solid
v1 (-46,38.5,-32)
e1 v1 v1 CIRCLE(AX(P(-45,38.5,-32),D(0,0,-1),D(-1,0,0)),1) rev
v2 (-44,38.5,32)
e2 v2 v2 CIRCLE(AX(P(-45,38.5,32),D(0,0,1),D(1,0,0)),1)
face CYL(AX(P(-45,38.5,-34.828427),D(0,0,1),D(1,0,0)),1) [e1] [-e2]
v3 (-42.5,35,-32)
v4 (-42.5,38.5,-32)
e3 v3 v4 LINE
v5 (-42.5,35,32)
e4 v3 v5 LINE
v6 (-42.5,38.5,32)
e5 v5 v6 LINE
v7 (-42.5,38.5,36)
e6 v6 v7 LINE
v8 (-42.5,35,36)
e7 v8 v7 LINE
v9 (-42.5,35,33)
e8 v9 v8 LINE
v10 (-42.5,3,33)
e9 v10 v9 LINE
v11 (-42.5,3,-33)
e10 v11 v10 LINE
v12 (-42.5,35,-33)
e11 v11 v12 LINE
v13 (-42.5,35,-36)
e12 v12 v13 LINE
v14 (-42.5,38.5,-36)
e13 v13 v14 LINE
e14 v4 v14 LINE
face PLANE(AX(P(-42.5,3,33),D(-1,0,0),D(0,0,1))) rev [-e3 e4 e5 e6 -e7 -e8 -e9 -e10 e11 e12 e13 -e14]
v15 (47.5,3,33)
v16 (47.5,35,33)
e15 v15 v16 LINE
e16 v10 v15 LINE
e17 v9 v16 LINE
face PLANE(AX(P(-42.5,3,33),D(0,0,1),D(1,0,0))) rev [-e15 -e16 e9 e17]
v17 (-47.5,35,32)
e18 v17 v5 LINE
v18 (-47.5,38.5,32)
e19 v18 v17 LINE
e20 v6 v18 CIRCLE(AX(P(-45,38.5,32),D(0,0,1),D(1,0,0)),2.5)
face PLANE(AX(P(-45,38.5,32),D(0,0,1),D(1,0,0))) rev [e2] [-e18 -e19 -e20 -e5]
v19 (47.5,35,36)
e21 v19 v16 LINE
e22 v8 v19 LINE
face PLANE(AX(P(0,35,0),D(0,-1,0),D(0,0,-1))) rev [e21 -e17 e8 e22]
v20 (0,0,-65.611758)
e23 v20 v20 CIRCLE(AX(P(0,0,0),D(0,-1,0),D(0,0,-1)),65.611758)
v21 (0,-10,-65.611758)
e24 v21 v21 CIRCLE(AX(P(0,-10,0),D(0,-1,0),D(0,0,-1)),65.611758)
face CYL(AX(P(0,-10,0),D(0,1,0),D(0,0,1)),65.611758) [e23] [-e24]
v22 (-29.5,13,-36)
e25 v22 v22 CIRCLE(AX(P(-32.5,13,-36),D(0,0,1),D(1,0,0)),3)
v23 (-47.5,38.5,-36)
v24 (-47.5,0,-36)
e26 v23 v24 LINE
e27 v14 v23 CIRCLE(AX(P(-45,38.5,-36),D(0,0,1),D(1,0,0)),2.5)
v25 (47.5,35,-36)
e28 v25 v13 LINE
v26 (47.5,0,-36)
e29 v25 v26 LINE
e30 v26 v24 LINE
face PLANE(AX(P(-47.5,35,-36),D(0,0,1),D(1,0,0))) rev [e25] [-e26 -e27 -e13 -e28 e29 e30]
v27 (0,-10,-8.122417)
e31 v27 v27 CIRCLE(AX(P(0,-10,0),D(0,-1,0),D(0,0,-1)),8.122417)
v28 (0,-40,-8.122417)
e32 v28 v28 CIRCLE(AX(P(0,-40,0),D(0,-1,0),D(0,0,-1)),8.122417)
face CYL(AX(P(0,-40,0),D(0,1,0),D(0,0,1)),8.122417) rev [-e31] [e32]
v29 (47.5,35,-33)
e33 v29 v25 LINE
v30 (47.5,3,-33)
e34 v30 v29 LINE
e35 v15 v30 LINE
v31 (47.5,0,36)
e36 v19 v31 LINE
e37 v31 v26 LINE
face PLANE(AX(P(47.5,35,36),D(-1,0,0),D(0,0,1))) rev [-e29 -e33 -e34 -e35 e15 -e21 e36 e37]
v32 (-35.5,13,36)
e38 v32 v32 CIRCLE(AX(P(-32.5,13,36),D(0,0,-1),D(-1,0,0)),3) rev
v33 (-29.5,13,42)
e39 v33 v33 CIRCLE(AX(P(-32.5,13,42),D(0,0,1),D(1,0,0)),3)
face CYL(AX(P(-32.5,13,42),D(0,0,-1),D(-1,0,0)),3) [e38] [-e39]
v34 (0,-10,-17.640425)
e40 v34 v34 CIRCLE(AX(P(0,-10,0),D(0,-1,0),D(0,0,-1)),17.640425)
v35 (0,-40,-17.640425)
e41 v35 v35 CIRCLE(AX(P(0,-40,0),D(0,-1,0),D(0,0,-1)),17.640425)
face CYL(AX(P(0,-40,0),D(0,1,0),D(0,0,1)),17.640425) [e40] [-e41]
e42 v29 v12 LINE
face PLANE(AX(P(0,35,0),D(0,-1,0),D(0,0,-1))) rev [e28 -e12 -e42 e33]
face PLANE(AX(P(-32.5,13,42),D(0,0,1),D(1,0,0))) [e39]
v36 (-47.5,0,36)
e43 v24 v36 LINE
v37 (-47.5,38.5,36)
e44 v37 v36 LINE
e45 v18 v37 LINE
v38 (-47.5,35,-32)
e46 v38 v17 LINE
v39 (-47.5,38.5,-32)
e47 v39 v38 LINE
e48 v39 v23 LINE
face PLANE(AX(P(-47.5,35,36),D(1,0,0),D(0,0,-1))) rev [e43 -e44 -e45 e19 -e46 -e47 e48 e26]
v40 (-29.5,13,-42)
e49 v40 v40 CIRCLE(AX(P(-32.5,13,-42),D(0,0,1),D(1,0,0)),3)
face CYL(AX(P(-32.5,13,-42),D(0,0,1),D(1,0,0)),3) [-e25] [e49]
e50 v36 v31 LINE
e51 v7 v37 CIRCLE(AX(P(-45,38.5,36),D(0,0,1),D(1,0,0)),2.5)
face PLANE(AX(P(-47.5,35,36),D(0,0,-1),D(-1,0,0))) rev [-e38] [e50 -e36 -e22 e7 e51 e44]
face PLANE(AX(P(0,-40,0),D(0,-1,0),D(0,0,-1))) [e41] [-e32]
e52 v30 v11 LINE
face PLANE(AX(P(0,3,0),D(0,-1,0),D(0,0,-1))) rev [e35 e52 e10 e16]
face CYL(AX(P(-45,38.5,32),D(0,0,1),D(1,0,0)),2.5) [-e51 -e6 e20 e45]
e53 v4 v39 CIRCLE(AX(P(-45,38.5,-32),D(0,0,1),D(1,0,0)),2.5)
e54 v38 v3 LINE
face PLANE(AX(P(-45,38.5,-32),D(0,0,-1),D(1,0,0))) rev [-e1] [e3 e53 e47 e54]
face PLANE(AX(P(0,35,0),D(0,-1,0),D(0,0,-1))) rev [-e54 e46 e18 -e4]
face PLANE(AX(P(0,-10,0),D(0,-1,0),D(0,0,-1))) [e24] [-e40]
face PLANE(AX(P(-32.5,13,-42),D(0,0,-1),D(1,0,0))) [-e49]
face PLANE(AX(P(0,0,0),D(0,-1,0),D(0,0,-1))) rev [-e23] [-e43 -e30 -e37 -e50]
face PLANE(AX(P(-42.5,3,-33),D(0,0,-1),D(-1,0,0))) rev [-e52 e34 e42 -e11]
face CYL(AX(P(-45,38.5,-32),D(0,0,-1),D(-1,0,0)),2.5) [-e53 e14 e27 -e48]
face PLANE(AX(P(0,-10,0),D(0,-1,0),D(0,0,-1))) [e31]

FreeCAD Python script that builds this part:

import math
import FreeCAD as App
import Part
import Sketcher
from FreeCAD import Vector

doc = App.newDocument("Part")
body = doc.addObject("PartDesign::Body", "Body")

# Sketch on XZ plane
sketch1 = body.newObject("Sketcher::SketchObject", "Sketch")
sketch1.AttachmentSupport = (doc.getObject("XZ_Plane"), [""])
sketch1.MapMode = "FlatFace"
sketch1.addGeometry([
    Part.LineSegment(Vector(-48, -36, 0), Vector(-48, 36, 0)),
    Part.LineSegment(Vector(-48, 36, 0), Vector(48, 36, 0)),
    Part.LineSegment(Vector(48, 36, 0), Vector(48, -36, 0)),
    Part.LineSegment(Vector(48, -36, 0), Vector(-48, -36, 0)),
], False)
sketch1.addConstraint([
    Sketcher.Constraint("Coincident", 0, 2, 1, 1),
    Sketcher.Constraint("Coincident", 1, 2, 2, 1),
    Sketcher.Constraint("Coincident", 2, 2, 3, 1),
    Sketcher.Constraint("Coincident", 3, 2, 0, 1),
    Sketcher.Constraint("Vertical", 0),
    Sketcher.Constraint("Horizontal", 1),
    Sketcher.Constraint("Vertical", 2),
    Sketcher.Constraint("Horizontal", 3),
    Sketcher.Constraint("Symmetric", 0, 2, 2, 2, -1, 1),
    Sketcher.Constraint("DistanceX", 1, 1, 1, 2, 95.0),
    Sketcher.Constraint("DistanceY", 0, 1, 0, 2, 72.0),
])
pad1 = body.newObject("PartDesign::Pad", "Pad")
pad1.Profile = sketch1
pad1.Length = 35
pad1.Reversed = True

# Sketch on XZ plane
sketch2 = body.newObject("Sketcher::SketchObject", "Sketch001")
sketch2.AttachmentSupport = (doc.getObject("XZ_Plane"), [""])
sketch2.MapMode = "FlatFace"
sketch2.AttachmentOffset = App.Placement(Vector(0, 0, -35), App.Rotation())
sketch2.addGeometry([
    Part.LineSegment(Vector(-42, -33, 0), Vector(-42, 33, 0)),
    Part.LineSegment(Vector(-42, 33, 0), Vector(48, 33, 0)),
    Part.LineSegment(Vector(48, 33, 0), Vector(48, -33, 0)),
    Part.LineSegment(Vector(48, -33, 0), Vector(-42, -33, 0)),
], False)
sketch2.addConstraint([
    Sketcher.Constraint("Coincident", 0, 2, 1, 1),
    Sketcher.Constraint("Coincident", 1, 2, 2, 1),
    Sketcher.Constraint("Coincident", 2, 2, 3, 1),
    Sketcher.Constraint("Coincident", 3, 2, 0, 1),
    Sketcher.Constraint("Vertical", 0),
    Sketcher.Constraint("Horizontal", 1),
    Sketcher.Constraint("Vertical", 2),
    Sketcher.Constraint("Horizontal", 3),
    Sketcher.Constraint("DistanceX", 1, 1, 1, 2, 90.0),
    Sketcher.Constraint("DistanceY", 0, 1, 0, 2, 66.0),
    Sketcher.Constraint("DistanceY", -1, 1, 0, 2, 33.0),
    Sketcher.Constraint("DistanceX", 0, 2, -1, 1, 42.5),
])
pocket1 = body.newObject("PartDesign::Pocket", "Pocket")
pocket1.Profile = sketch2
pocket1.Length = 32
pocket1.Reversed = True

# Sketch on XY plane
sketch3 = body.newObject("Sketcher::SketchObject", "Sketch002")
sketch3.AttachmentSupport = (doc.getObject("XY_Plane"), [""])
sketch3.MapMode = "FlatFace"
sketch3.AttachmentOffset = App.Placement(Vector(0, 0, 36), App.Rotation())
sketch3.addGeometry(Part.Circle(Vector(-32.5, 13, 0), Vector(0, 0, 1), 3), False)
sketch3.addConstraint([
    Sketcher.Constraint("Diameter", 0, 6.0),
    Sketcher.Constraint("DistanceY", -1, 1, 0, 3, 13.0),
    Sketcher.Constraint("DistanceX", 0, 3, -1, 1, 32.5),
])
pad2 = body.newObject("PartDesign::Pad", "Pad001")
pad2.Profile = sketch3
pad2.Length = 6
doc.recompute()

mirrored = body.newObject("PartDesign::Mirrored", "Mirrored")
mirrored.Originals = [pad2]
mirrored.MirrorPlane = (doc.getObject("XY_Plane"), [""])
body.Tip = mirrored

# Sketch on XY plane
sketch4 = body.newObject("Sketcher::SketchObject", "Sketch003")
sketch4.AttachmentSupport = (doc.getObject("XY_Plane"), [""])
sketch4.MapMode = "FlatFace"
sketch4.AttachmentOffset = App.Placement(Vector(0, 0, 36), App.Rotation())
sketch4.addGeometry([
    Part.LineSegment(Vector(-42.5, 35, 0), Vector(-42.5, 38.5, 0)),
    Part.ArcOfCircle(Part.Circle(Vector(-45, 38.5, 0), Vector(0, 0, 1), 2.5), math.radians(0), math.radians(180)),
    Part.LineSegment(Vector(-47.5, 38.5, 0), Vector(-47.5, 35, 0)),
    Part.LineSegment(Vector(-47.5, 35, 0), Vector(-42.5, 35, 0)),
], False)
sketch4.addConstraint([
    Sketcher.Constraint("Tangent", 0, 2, 1, 1),
    Sketcher.Constraint("Tangent", 1, 2, 2, 1),
    Sketcher.Constraint("Coincident", 2, 2, 3, 1),
    Sketcher.Constraint("Coincident", 3, 2, 0, 1),
    Sketcher.Constraint("Vertical", 0),
    Sketcher.Constraint("Vertical", 2),
    Sketcher.Constraint("Horizontal", 3),
    Sketcher.Constraint("Radius", 1, 2.5),
    Sketcher.Constraint("DistanceY", 0, 1, 0, 2, 3.5),
    Sketcher.Constraint("DistanceX", 1, 3, -1, 1, 45.0),
    Sketcher.Constraint("DistanceY", -1, 1, 2, 2, 35.0),
])
pad3 = body.newObject("PartDesign::Pad", "Pad002")
pad3.Profile = sketch4
pad3.Length = 4
pad3.Reversed = True
doc.recompute()

mirrored2 = body.newObject("PartDesign::Mirrored", "Mirrored001")
mirrored2.Originals = [pad3]
mirrored2.MirrorPlane = (doc.getObject("XY_Plane"), [""])
body.Tip = mirrored2

# Sketch on XZ plane
sketch5 = body.newObject("Sketcher::SketchObject", "Sketch004")
sketch5.AttachmentSupport = (doc.getObject("XZ_Plane"), [""])
sketch5.MapMode = "FlatFace"
sketch5.addGeometry(Part.Circle(Vector(0, 0, 0), Vector(0, 0, 1), 66), False)
sketch5.addConstraint([
    Sketcher.Constraint("Coincident", 0, 3, -1, 1),
    Sketcher.Constraint("Diameter", 0, 131.223516),
])
pad4 = body.newObject("PartDesign::Pad", "Pad003")
pad4.Profile = sketch5
pad4.Length = 10

# Sketch on XZ plane
sketch6 = body.newObject("Sketcher::SketchObject", "Sketch005")
sketch6.AttachmentSupport = (doc.getObject("XZ_Plane"), [""])
sketch6.MapMode = "FlatFace"
sketch6.AttachmentOffset = App.Placement(Vector(0, 0, 10), App.Rotation())
sketch6.addGeometry([
    Part.Circle(Vector(0, 0, 0), Vector(0, 0, 1), 18),
    Part.Circle(Vector(0, 0, 0), Vector(0, 0, 1), 8),
], False)
sketch6.addConstraint([
    Sketcher.Constraint("Coincident", 0, 3, -1, 1),
    Sketcher.Constraint("Coincident", 1, 3, -1, 1),
    Sketcher.Constraint("Diameter", 0, 35.28085),
    Sketcher.Constraint("Diameter", 1, 16.244833),
])
pad5 = body.newObject("PartDesign::Pad", "Pad004")
pad5.Profile = sketch6
pad5.Length = 30

# Sketch on XY plane
sketch7 = body.newObject("Sketcher::SketchObject", "Sketch006")
sketch7.AttachmentSupport = (doc.getObject("XY_Plane"), [""])
sketch7.MapMode = "FlatFace"
sketch7.AttachmentOffset = App.Placement(Vector(0, 0, 36), App.Rotation())
sketch7.addGeometry(Part.Circle(Vector(-45, 38.5, 0), Vector(0, 0, 1), 1), False)
sketch7.addConstraint([
    Sketcher.Constraint("Diameter", 0, 2.0),
    Sketcher.Constraint("DistanceX", 0, 3, -1, 1, 45.0),
    Sketcher.Constraint("DistanceY", -1, 1, 0, 3, 38.5),
])
pad6 = body.newObject("PartDesign::Pad", "Pad005")
pad6.Profile = sketch7
pad6.Length = 68
pad6.Reversed = True

doc.recompute()
